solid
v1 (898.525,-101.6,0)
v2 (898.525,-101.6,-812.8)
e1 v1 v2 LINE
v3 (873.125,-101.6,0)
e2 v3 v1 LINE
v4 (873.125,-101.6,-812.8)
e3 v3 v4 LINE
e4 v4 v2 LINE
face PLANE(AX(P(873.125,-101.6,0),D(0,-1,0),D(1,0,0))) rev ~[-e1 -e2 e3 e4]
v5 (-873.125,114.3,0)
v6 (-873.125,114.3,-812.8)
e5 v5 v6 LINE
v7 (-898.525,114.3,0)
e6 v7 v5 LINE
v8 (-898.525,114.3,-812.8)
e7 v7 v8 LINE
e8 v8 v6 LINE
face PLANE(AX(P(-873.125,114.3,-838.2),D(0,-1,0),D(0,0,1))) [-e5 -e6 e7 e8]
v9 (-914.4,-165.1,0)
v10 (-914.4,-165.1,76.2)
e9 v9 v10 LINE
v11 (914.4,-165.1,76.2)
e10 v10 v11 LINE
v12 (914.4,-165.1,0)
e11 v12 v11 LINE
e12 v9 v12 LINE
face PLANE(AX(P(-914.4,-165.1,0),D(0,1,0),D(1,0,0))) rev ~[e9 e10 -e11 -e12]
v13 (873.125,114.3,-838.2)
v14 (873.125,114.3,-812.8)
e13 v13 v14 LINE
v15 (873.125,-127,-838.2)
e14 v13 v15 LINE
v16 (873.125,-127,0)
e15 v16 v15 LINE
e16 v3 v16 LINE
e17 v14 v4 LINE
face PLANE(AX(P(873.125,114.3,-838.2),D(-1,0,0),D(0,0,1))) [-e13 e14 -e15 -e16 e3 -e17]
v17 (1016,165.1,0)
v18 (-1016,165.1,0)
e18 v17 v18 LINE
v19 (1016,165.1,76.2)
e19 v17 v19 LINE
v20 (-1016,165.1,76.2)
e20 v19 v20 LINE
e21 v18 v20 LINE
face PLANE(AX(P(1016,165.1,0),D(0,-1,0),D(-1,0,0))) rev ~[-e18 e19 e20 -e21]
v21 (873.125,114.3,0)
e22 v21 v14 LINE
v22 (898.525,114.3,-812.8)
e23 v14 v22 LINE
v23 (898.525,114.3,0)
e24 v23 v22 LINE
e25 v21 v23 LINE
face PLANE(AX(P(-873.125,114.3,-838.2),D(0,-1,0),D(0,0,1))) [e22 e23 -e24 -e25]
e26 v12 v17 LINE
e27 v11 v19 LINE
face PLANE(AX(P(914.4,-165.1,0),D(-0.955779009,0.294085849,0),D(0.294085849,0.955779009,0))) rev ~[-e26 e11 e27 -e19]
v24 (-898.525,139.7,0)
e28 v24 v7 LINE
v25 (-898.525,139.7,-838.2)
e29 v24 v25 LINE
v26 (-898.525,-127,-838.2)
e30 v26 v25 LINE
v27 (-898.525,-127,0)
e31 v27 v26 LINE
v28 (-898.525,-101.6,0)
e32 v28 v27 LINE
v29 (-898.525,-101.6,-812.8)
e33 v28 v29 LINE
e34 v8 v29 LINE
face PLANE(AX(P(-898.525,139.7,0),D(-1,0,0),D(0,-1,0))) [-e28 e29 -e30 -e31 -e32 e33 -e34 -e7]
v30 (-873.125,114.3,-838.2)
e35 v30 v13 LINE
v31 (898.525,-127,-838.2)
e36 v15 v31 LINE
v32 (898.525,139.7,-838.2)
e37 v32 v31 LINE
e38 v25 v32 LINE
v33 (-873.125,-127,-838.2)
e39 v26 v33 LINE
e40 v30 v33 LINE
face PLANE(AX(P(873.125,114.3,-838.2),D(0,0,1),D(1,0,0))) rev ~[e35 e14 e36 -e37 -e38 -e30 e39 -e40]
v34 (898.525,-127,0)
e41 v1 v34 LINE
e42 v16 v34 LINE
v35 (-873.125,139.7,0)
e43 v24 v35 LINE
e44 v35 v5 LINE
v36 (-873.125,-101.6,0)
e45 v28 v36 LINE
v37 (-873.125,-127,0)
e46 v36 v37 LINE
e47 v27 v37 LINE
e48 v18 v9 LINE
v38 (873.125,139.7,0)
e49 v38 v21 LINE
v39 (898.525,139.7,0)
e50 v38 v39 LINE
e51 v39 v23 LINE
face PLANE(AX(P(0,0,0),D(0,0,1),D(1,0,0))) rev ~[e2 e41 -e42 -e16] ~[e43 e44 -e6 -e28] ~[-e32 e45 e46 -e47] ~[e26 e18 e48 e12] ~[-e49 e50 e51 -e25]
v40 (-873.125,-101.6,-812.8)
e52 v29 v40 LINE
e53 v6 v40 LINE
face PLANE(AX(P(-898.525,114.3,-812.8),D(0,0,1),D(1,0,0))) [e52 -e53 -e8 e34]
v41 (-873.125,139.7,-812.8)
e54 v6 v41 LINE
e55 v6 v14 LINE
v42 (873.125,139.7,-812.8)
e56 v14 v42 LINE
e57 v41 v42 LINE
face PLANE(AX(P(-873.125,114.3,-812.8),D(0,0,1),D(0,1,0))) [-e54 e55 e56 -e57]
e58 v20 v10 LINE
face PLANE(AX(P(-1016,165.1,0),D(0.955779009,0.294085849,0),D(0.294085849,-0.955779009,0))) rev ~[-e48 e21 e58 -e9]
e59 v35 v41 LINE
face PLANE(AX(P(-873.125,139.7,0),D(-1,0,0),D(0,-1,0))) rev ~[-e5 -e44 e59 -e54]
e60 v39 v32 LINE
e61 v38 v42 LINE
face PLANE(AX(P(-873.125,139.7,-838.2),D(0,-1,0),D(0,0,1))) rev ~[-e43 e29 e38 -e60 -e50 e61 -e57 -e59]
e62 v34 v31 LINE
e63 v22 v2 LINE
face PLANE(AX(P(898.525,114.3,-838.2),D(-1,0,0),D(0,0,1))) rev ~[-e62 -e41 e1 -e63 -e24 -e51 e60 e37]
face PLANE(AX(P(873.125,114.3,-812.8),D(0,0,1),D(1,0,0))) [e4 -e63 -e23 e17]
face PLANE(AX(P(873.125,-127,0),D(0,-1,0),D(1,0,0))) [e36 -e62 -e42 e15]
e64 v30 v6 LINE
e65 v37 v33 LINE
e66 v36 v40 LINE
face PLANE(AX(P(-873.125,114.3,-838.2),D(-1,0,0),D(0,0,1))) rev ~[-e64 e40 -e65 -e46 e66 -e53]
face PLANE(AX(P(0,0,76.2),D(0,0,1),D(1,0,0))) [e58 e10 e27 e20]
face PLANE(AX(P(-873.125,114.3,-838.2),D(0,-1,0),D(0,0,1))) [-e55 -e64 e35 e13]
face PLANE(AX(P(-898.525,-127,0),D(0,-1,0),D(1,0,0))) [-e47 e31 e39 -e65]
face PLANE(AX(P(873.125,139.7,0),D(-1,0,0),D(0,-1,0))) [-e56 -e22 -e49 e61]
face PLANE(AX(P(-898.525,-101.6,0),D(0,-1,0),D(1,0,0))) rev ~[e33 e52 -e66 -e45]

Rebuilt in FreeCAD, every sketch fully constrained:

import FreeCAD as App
import Part
import Sketcher

V = App.Vector
Q = App.Units.Quantity


def add_polygon(sketch, points):
    """Adds a closed chain of lines whose ends are joined by coincident constraints."""
    first, n = sketch.GeometryCount, len(points)
    for a, b in zip(points, points[1:] + points[:1]):
        sketch.addGeometry(Part.LineSegment(App.Vector(*a, 0), App.Vector(*b, 0)), False)
    for i in range(n):
        sketch.addConstraint(Sketcher.Constraint("Coincident", first + i, 2, first + (i + 1) % n, 1))

doc = App.newDocument("Part")
body = doc.addObject("PartDesign::Body", "Body")

# Sketch on XY plane
sketch1 = doc.addObject("Sketcher::SketchObject", "Sketch")
body.addObject(sketch1)
sketch1.AttachmentSupport = (doc.XY_Plane, [""])
sketch1.MapMode = "FlatFace"
add_polygon(sketch1, [(-914, -165), (914, -165), (1016, 165), (-1016, 165)])  # lines 0-3
sketch1.addConstraint([
    Sketcher.Constraint("Horizontal", 0),
    Sketcher.Constraint("Horizontal", 2),
    Sketcher.Constraint("Equal", 1, 3),
    Sketcher.Constraint("DistanceX", 0, 1, 0, 2, Q("72 in")),
    Sketcher.Constraint("DistanceX", 2, 2, 2, 1, Q("80 in")),
    Sketcher.Constraint("DistanceX", -1, 1, 0, 2, Q("36 in")),
    Sketcher.Constraint("DistanceY", 0, 2, 1, 2, Q("13 in")),
    Sketcher.Constraint("DistanceY", 0, 2, -1, 1, Q("6.5 in")),
])
pad1 = doc.addObject("PartDesign::Pad", "Pad")
body.addObject(pad1)
pad1.Profile = sketch1
pad1.Length = Q("3 in")

# Sketch on XY plane
sketch2 = doc.addObject("Sketcher::SketchObject", "Sketch001")
body.addObject(sketch2)
sketch2.AttachmentSupport = (doc.XY_Plane, [""])
sketch2.MapMode = "FlatFace"
add_polygon(sketch2, [(873, -127), (873, -102), (899, -102), (899, -127)])  # lines 0-3
add_polygon(sketch2, [(-899, -127), (-899, -102), (-873, -102), (-873, -127)])  # lines 4-7
add_polygon(sketch2, [(-899, 114), (-899, 140), (-873, 140), (-873, 114)])  # lines 8-11
add_polygon(sketch2, [(873, 114), (873, 140), (899, 140), (899, 114)])  # lines 12-15
sketch2.addConstraint([
    Sketcher.Constraint("Vertical", 0),
    Sketcher.Constraint("Horizontal", 1),
    Sketcher.Constraint("Vertical", 2),
    Sketcher.Constraint("Horizontal", 3),
    Sketcher.Constraint("Vertical", 4),
    Sketcher.Constraint("Horizontal", 5),
    Sketcher.Constraint("Vertical", 6),
    Sketcher.Constraint("Horizontal", 7),
    Sketcher.Constraint("Vertical", 8),
    Sketcher.Constraint("Horizontal", 9),
    Sketcher.Constraint("Vertical", 10),
    Sketcher.Constraint("Horizontal", 11),
    Sketcher.Constraint("Vertical", 12),
    Sketcher.Constraint("Horizontal", 13),
    Sketcher.Constraint("Vertical", 14),
    Sketcher.Constraint("Horizontal", 15),
    Sketcher.Constraint("Symmetric", 1, 2, 4, 2, -2),
    Sketcher.Constraint("Symmetric", 3, 2, 6, 2, -2),
    Sketcher.Constraint("Symmetric", 9, 2, 12, 2, -2),
    Sketcher.Constraint("Symmetric", 11, 2, 14, 2, -2),
    Sketcher.Constraint("Vertical", 7, 2, 8, 2),
    Sketcher.Constraint("Vertical", 6, 2, 9, 2),
    Sketcher.Constraint("Equal", 15, 0),
    Sketcher.Constraint("Equal", 6, 8),
    Sketcher.Constraint("DistanceX", 1, 1, 1, 2, Q("1 in")),
    Sketcher.Constraint("DistanceY", 0, 2, -1, 1, Q("4 in")),
    Sketcher.Constraint("DistanceY", -1, 1, 8, 2, Q("5.5 in")),
    Sketcher.Constraint("DistanceX", 4, 2, 0, 2, Q("69.75 in")),
])
pad2 = doc.addObject("PartDesign::Pad", "Pad001")
body.addObject(pad2)
pad2.Profile = sketch2
pad2.Length = Q("33 in")
pad2.Reversed = True

# Sketch on YZ plane
sketch3 = doc.addObject("Sketcher::SketchObject", "Sketch002")
body.addObject(sketch3)
sketch3.AttachmentSupport = (doc.YZ_Plane, [""])
sketch3.MapMode = "FlatFace"
sketch3.AttachmentOffset = App.Placement(V(0, 0, -34.375 * 25.4), App.Rotation())
add_polygon(sketch3, [(114, -813), (114, -838), (140, -838), (140, -813)])  # lines 0-3
sketch3.addConstraint([
    Sketcher.Constraint("Vertical", 0),
    Sketcher.Constraint("Horizontal", 1),
    Sketcher.Constraint("Vertical", 2),
    Sketcher.Constraint("Horizontal", 3),
    Sketcher.Constraint("Equal", 3, 0),
    Sketcher.Constraint("DistanceX", 1, 1, 1, 2, Q("1 in")),
    Sketcher.Constraint("DistanceY", 0, 2, -1, 1, Q("33 in")),
    Sketcher.Constraint("DistanceX", -1, 1, 0, 2, Q("4.5 in")),
])
pad3 = doc.addObject("PartDesign::Pad", "Pad002")
body.addObject(pad3)
pad3.Profile = sketch3
pad3.Type = "UpToLast"

# Sketch on XZ plane
sketch4 = doc.addObject("Sketcher::SketchObject", "Sketch003")
body.addObject(sketch4)
sketch4.AttachmentSupport = (doc.XZ_Plane, [""])
sketch4.MapMode = "FlatFace"
sketch4.AttachmentOffset = App.Placement(V(0, 0, -4.5 * 25.4), App.Rotation())
add_polygon(sketch4, [(873, -813), (873, -838), (899, -838), (899, -813)])  # lines 0-3
add_polygon(sketch4, [(-899, -813), (-899, -838), (-873, -838), (-873, -813)])  # lines 4-7
sketch4.addConstraint([
    Sketcher.Constraint("Vertical", 0),
    Sketcher.Constraint("Horizontal", 1),
    Sketcher.Constraint("Vertical", 2),
    Sketcher.Constraint("Horizontal", 3),
    Sketcher.Constraint("Vertical", 4),
    Sketcher.Constraint("Horizontal", 5),
    Sketcher.Constraint("Vertical", 6),
    Sketcher.Constraint("Horizontal", 7),
    Sketcher.Constraint("Symmetric", 1, 2, 4, 2, -2),
    Sketcher.Constraint("Symmetric", 3, 2, 6, 2, -2),
    Sketcher.Constraint("Equal", 7, 0),
    Sketcher.Constraint("DistanceX", 1, 1, 1, 2, Q("1 in")),
    Sketcher.Constraint("DistanceY", 0, 2, -1, 1, Q("33 in")),
    Sketcher.Constraint("DistanceX", 4, 2, 0, 2, Q("69.75 in")),
])
pad4 = doc.addObject("PartDesign::Pad", "Pad003")
body.addObject(pad4)
pad4.Profile = sketch4
pad4.Length = Q("8.5 in")

doc.recompute()
